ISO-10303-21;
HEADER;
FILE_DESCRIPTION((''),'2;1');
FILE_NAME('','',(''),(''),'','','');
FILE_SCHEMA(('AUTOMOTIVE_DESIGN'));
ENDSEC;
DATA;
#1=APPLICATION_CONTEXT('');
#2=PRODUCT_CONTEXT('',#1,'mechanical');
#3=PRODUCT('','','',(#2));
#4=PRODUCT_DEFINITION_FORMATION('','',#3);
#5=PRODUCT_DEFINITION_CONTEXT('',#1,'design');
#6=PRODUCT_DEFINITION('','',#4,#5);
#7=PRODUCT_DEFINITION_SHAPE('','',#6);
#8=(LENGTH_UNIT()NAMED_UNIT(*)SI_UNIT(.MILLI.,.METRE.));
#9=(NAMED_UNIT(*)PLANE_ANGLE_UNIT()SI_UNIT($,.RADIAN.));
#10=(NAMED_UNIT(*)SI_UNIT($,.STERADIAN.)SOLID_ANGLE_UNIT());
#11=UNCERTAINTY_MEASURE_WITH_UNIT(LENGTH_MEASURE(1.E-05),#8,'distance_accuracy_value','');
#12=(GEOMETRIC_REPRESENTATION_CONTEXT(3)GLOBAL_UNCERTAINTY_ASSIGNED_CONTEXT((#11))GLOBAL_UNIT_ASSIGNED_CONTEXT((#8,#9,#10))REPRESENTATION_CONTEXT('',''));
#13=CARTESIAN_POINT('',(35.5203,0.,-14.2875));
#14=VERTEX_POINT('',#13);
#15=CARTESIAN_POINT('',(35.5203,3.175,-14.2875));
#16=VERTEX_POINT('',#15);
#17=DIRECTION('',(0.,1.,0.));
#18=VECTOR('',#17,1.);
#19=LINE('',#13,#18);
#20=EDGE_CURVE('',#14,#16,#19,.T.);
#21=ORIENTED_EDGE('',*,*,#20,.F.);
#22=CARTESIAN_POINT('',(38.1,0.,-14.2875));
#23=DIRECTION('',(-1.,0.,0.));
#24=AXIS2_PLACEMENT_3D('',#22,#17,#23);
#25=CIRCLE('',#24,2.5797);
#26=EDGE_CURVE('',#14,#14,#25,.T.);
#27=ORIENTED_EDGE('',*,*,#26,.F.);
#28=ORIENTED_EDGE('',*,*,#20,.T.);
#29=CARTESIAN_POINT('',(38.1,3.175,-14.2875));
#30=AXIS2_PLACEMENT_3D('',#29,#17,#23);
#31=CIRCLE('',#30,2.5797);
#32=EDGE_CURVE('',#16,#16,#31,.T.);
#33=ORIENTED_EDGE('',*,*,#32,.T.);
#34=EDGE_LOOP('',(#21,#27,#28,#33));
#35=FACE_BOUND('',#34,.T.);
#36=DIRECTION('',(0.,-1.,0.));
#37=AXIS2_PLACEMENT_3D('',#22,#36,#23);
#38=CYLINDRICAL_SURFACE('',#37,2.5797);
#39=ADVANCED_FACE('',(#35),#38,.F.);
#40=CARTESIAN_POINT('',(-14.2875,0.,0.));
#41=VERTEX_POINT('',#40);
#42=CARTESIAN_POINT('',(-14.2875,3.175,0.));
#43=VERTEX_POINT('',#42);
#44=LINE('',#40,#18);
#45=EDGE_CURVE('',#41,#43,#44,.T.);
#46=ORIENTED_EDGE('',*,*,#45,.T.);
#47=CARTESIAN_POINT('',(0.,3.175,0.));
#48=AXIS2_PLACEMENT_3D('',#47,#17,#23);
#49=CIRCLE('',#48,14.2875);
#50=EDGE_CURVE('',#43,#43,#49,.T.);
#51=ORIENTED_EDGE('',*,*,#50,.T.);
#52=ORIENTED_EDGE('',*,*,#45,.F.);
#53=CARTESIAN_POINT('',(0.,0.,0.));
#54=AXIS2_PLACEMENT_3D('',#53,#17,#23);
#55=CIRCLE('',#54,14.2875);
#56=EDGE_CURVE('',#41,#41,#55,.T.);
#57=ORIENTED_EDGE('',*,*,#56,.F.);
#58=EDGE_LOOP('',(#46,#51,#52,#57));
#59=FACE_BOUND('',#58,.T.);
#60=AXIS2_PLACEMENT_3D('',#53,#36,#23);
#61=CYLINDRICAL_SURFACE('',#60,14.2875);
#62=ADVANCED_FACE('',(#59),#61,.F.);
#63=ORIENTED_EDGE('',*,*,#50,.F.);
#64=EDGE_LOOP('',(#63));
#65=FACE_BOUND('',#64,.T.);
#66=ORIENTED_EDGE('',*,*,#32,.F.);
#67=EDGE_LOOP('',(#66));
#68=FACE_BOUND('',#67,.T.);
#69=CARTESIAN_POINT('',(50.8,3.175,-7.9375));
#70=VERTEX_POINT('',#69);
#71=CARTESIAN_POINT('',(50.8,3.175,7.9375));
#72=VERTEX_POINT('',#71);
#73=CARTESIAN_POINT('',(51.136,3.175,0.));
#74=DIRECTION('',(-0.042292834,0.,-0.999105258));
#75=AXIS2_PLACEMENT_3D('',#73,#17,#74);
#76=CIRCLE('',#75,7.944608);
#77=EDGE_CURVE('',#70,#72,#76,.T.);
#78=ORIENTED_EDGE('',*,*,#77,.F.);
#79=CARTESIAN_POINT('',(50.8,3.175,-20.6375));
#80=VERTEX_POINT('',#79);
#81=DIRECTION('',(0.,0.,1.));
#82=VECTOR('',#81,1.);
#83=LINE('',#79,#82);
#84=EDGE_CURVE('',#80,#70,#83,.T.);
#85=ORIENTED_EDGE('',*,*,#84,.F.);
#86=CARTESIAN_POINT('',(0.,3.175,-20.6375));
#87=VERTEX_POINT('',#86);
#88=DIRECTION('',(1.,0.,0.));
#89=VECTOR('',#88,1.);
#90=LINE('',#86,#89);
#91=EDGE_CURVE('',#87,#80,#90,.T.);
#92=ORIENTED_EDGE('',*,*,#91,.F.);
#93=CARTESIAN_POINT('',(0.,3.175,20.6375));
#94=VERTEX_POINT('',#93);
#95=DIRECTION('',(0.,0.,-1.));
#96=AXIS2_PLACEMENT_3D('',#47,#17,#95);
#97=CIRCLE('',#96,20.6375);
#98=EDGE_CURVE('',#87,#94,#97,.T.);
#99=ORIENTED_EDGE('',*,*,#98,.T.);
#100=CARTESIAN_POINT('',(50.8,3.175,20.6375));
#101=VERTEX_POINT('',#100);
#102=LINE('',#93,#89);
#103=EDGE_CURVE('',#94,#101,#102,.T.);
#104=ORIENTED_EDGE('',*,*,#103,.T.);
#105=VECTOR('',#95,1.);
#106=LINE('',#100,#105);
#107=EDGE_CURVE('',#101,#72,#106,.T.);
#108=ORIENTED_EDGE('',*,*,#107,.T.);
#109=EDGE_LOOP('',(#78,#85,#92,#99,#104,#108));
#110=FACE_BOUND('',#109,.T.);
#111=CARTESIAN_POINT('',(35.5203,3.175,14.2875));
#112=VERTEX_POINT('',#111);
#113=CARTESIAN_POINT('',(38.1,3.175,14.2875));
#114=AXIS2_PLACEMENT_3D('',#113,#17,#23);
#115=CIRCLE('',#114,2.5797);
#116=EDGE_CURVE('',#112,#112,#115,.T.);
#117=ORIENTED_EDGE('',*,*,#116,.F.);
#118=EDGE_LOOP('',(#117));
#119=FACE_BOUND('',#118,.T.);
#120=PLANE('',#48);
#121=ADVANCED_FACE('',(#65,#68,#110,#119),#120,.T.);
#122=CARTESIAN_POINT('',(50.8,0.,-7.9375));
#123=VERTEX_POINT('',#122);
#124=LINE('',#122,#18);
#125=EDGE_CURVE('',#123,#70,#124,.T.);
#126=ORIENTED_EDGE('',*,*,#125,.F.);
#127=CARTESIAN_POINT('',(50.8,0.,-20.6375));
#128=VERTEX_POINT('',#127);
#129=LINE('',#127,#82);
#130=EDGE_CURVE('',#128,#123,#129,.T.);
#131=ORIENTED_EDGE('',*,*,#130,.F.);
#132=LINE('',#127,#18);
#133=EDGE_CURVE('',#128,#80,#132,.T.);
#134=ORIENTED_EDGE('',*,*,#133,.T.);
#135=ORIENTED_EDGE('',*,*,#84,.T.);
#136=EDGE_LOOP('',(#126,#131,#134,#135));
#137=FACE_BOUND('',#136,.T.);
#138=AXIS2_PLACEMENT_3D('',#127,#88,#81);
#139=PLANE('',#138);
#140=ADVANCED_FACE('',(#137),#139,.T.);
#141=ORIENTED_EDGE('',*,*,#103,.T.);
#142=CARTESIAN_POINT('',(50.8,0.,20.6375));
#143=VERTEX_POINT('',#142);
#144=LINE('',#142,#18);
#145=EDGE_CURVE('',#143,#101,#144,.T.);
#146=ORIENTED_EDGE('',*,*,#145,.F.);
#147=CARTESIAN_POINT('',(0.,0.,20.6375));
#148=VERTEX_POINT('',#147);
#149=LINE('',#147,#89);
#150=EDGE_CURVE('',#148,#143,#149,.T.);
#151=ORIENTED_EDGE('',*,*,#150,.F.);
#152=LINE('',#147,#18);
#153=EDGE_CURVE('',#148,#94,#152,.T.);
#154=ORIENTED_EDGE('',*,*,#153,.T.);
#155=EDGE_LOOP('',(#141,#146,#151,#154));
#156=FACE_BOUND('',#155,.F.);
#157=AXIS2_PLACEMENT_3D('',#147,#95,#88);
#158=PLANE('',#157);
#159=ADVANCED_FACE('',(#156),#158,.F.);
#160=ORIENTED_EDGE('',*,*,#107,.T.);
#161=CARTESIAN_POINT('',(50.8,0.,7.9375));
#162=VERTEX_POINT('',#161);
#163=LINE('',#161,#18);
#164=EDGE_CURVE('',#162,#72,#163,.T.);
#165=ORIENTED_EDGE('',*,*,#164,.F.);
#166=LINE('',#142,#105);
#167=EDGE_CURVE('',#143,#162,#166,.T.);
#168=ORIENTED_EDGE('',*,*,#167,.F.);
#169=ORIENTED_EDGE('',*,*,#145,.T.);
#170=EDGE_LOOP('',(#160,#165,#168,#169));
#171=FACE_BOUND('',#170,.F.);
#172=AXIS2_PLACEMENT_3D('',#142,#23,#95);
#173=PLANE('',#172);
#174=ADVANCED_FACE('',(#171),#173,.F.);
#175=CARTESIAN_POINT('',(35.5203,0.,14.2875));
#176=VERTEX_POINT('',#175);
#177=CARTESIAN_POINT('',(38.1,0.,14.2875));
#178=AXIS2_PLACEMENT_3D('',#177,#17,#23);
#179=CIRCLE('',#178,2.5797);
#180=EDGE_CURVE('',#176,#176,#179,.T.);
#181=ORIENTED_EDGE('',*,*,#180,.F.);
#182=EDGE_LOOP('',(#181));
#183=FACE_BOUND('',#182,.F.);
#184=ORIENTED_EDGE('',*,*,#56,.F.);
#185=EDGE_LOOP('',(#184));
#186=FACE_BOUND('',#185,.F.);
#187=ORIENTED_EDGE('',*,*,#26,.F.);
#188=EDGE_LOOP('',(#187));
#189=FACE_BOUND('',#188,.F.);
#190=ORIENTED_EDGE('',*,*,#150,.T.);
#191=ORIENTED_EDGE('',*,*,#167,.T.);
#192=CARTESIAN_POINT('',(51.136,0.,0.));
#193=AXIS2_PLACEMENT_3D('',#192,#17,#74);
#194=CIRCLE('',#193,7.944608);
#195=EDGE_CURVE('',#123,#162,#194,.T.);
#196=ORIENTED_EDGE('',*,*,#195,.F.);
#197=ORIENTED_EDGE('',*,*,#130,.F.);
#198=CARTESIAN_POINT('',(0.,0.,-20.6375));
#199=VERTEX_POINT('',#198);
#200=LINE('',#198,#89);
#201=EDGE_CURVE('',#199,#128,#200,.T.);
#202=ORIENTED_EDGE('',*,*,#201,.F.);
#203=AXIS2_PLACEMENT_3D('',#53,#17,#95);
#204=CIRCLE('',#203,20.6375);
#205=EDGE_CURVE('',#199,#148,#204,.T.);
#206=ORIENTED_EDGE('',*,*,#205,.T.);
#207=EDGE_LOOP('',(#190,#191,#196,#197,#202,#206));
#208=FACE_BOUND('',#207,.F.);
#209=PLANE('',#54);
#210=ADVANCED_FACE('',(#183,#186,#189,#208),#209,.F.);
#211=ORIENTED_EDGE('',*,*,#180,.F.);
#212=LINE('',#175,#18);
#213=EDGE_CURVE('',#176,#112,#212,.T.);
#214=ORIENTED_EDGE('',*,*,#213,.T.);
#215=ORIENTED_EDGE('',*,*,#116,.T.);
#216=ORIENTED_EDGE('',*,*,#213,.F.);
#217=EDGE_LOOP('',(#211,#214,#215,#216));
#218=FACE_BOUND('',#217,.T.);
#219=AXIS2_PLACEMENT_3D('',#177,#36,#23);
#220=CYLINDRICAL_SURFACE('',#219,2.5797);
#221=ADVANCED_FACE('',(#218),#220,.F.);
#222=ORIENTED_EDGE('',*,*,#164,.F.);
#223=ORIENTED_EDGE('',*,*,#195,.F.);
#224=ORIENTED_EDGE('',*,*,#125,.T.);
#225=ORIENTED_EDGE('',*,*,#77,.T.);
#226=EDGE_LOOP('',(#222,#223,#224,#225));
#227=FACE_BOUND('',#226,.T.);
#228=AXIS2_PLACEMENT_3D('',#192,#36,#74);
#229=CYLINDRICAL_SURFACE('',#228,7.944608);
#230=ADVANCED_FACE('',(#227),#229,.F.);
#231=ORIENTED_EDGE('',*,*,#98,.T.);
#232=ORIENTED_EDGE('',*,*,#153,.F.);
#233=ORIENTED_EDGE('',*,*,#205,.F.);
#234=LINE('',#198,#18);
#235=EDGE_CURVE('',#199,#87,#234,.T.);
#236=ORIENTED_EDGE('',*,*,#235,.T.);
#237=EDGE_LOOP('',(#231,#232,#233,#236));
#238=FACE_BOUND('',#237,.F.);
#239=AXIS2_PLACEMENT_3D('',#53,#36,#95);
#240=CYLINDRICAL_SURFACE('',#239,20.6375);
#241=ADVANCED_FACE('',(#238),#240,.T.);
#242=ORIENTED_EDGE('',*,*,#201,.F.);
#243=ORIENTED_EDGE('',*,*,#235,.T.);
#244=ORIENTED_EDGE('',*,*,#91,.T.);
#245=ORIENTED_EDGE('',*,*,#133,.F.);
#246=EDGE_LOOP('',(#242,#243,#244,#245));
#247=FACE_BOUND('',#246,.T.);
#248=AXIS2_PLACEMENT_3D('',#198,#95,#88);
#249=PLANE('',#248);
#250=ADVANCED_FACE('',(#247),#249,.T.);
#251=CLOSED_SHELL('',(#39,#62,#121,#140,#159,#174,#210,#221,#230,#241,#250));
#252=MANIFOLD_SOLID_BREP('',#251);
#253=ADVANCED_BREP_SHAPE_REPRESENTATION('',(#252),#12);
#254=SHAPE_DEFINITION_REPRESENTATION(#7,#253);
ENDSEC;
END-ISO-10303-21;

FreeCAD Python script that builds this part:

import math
import FreeCAD as App
import Part
import Sketcher

V = App.Vector
Q = App.Units.Quantity

doc = App.newDocument("Part")
body = doc.addObject("PartDesign::Body", "Body")

# Sketch on XZ plane
sketch1 = body.newObject("Sketcher::SketchObject", "Sketch")
sketch1.AttachmentSupport = (doc.getObject("XZ_Plane"), [""])
sketch1.MapMode = "FlatFace"
sketch1.addGeometry([
    Part.LineSegment(V(50.8, -20.6375, 0), V(0, -20.6375, 0)),  # 0
    Part.ArcOfCircle(Part.Circle(V(0, 0, 0), V(0, 0, 1), 20.6375), math.radians(90), math.radians(270)),  # 1
    Part.LineSegment(V(0, 20.6375, 0), V(50.8, 20.6375, 0)),  # 2
    Part.LineSegment(V(50.8, 20.6375, 0), V(50.8, 7.9375, 0)),  # 3
    Part.ArcOfCircle(Part.Circle(V(51.136, 0, 0), V(0, 0, 1), 7.944608), math.radians(92.423924), math.radians(267.576076)),  # 4
    Part.LineSegment(V(50.8, -7.9375, 0), V(50.8, -20.6375, 0)),  # 5
    Part.Circle(V(38.1, -14.2875, 0), V(0, 0, 1), 2.5797),  # 6
    Part.Circle(V(38.1, 14.2875, 0), V(0, 0, 1), 2.5797),  # 7
    Part.Circle(V(0, 0, 0), V(0, 0, 1), 14.2875),  # 8
], False)
sketch1.addConstraint([
    Sketcher.Constraint("Tangent", 0, 2, 1, 2),
    Sketcher.Constraint("Tangent", 1, 1, 2, 1),
    Sketcher.Constraint("Coincident", 2, 2, 3, 1),
    Sketcher.Constraint("Coincident", 3, 2, 4, 1),
    Sketcher.Constraint("Coincident", 4, 2, 5, 1),
    Sketcher.Constraint("Coincident", 5, 2, 0, 1),
    Sketcher.Constraint("Horizontal", 0),
    Sketcher.Constraint("Horizontal", 2),
    Sketcher.Constraint("Vertical", 3),
    Sketcher.Constraint("Vertical", 5),
    Sketcher.Constraint("Coincident", 1, 3, -1, 1),
    Sketcher.Constraint("Coincident", 8, 3, -1, 1),
    Sketcher.Constraint("Equal", 6, 7),
    Sketcher.Constraint("Symmetric", 6, 3, 7, 3, -1),
    Sketcher.Constraint("Symmetric", 3, 2, 4, 2, -1),
    Sketcher.Constraint("DistanceX", 0, 2, 0, 1, Q("2 in")),
    Sketcher.Constraint("Diameter", 6, Q("0.203126 in")),
    Sketcher.Constraint("Diameter", 8, Q("1.125 in")),
    Sketcher.Constraint("DistanceY", 3, 2, 3, 1, Q("0.5 in")),
    Sketcher.Constraint("DistanceX", 7, 3, 2, 2, Q("0.5 in")),
    Sketcher.Constraint("DistanceY", 0, 2, 6, 3, Q("0.25 in")),
    Sketcher.Constraint("Radius", 1, Q("0.8125 in")),
    Sketcher.Constraint("Radius", 4, Q("7.9446 mm")),
])
pad1 = body.newObject("PartDesign::Pad", "Pad")
pad1.Profile = sketch1
pad1.Length = Q("0.125 in")
pad1.Reversed = True

doc.recompute()
